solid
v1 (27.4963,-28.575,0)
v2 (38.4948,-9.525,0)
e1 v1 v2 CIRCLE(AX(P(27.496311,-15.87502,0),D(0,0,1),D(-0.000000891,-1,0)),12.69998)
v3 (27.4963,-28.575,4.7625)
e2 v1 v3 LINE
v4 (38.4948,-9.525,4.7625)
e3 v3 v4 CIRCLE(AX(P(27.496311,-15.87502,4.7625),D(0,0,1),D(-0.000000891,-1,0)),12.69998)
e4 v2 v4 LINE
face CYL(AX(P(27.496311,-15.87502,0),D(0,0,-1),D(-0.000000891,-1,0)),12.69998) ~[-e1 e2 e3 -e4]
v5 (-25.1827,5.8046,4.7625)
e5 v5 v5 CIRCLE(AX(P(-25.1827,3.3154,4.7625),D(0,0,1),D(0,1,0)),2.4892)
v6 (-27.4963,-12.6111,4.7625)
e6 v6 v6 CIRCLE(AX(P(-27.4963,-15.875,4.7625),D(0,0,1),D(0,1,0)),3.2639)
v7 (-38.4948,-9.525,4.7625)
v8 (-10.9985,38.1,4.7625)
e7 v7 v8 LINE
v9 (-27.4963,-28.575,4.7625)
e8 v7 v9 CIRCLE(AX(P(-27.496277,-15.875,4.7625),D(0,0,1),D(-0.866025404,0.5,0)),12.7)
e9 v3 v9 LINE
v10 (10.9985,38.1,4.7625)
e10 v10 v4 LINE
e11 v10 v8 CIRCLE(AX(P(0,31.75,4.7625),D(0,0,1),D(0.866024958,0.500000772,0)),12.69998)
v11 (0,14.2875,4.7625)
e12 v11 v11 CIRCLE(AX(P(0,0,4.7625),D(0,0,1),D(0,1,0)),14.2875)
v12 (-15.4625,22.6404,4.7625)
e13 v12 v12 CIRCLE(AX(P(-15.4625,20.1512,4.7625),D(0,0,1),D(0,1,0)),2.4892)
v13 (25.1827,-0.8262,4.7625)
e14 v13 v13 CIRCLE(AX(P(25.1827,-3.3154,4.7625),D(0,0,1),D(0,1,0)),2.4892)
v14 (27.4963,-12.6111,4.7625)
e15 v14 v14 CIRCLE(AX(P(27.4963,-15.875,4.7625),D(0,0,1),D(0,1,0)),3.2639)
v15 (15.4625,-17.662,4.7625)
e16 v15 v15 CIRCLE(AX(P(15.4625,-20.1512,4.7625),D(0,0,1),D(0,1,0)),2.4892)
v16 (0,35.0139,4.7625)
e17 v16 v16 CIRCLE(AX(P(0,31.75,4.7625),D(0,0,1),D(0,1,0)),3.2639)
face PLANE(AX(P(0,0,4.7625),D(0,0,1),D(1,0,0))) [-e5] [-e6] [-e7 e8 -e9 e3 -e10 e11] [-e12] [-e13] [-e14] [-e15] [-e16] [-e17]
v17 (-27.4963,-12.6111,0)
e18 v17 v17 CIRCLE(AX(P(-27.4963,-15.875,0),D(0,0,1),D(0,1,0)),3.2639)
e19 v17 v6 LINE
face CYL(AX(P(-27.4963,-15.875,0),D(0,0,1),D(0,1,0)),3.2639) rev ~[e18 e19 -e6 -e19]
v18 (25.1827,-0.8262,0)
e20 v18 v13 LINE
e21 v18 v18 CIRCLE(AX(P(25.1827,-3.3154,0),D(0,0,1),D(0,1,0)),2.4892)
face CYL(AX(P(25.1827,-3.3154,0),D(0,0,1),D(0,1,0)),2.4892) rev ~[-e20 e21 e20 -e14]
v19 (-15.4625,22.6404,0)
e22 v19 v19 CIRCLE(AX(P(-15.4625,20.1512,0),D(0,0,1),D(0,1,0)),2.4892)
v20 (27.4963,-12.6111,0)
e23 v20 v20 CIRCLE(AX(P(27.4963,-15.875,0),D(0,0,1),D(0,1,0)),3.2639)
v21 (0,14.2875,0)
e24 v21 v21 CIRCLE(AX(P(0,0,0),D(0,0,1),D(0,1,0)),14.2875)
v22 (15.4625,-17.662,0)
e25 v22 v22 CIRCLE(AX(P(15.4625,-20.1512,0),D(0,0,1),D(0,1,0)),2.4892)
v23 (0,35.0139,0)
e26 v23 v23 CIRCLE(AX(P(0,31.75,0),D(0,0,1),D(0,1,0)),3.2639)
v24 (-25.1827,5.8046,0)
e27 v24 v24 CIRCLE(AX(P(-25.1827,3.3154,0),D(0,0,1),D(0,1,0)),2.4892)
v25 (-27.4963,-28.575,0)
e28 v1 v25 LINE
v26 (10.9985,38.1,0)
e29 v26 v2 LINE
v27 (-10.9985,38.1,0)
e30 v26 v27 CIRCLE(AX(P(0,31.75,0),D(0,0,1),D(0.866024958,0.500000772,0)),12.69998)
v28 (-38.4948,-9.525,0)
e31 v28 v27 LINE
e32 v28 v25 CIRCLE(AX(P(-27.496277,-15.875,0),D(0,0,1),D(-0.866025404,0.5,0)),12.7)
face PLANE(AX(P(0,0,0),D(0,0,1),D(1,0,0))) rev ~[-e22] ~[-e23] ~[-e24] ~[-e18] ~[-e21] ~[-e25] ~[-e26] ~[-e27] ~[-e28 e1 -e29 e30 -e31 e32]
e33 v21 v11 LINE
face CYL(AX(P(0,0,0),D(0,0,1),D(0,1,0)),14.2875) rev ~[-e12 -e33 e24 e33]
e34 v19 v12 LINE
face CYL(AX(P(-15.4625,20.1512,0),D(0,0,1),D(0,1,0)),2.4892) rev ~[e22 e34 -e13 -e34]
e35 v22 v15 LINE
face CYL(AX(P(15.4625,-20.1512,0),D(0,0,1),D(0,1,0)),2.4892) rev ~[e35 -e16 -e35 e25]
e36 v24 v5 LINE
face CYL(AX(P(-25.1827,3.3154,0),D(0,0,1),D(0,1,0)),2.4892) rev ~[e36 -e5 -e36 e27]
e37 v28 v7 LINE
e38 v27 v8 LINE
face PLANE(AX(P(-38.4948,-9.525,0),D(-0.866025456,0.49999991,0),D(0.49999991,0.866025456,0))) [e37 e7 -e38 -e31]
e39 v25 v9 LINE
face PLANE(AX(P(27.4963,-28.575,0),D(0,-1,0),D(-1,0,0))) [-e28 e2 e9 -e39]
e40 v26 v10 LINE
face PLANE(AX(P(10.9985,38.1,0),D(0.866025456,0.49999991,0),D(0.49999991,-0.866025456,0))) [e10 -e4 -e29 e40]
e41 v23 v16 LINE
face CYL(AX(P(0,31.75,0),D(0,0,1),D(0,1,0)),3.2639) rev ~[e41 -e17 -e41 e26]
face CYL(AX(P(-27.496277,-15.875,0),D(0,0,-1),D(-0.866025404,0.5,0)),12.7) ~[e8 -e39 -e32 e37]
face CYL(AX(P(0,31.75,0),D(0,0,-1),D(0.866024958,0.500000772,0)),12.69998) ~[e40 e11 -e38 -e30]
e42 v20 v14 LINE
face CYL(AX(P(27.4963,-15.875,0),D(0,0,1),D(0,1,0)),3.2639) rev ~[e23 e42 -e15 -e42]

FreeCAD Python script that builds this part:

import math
import FreeCAD as App
import Part
import Sketcher
from FreeCAD import Vector
Q = App.Units.Quantity

doc = App.newDocument("Part")
body = doc.addObject("PartDesign::Body", "Body")

sketch1 = body.newObject("Sketcher::SketchObject", "Sketch")
sketch1.AttachmentSupport = (doc.getObject("XY_Plane"), [""])
sketch1.MapMode = "FlatFace"
sketch1.addGeometry([
    Part.LineSegment(Vector(-11, 38, 0), Vector(-38, -10, 0)),
    Part.ArcOfCircle(Part.Circle(Vector(-27, -16, 0), Vector(0, 0, 1), 13), math.radians(150), math.radians(270)),
    Part.LineSegment(Vector(-27, -29, 0), Vector(27, -29, 0)),
    Part.ArcOfCircle(Part.Circle(Vector(27, -16, 0), Vector(0, 0, 1), 13), math.radians(-90), math.radians(30)),
    Part.LineSegment(Vector(38, -10, 0), Vector(11, 38, 0)),
    Part.ArcOfCircle(Part.Circle(Vector(0, 32, 0), Vector(0, 0, 1), 13), math.radians(30), math.radians(150)),
], False)
sketch1.addConstraint([
    Sketcher.Constraint("Tangent", 0, 2, 1, 1),
    Sketcher.Constraint("Tangent", 1, 2, 2, 1),
    Sketcher.Constraint("Tangent", 2, 2, 3, 1),
    Sketcher.Constraint("Tangent", 3, 2, 4, 1),
    Sketcher.Constraint("Tangent", 4, 2, 5, 1),
    Sketcher.Constraint("Tangent", 5, 2, 0, 1),
    Sketcher.Constraint("Horizontal", 2),
    Sketcher.Constraint("Equal", 1, 3),
    Sketcher.Constraint("Equal", 3, 5),
    Sketcher.Constraint("Symmetric", 0, 2, 3, 2, -2),
    Sketcher.Constraint("Radius", 1, Q("0.5 in")),
    Sketcher.Constraint("DistanceY", -1, 1, 5, 3, Q("1.25 in")),
    Sketcher.Constraint("Angle", 0, Q("-120 deg")),
    Sketcher.Constraint("DistanceY", 1, 3, -1, 1, Q("0.625 in")),
])
pad1 = body.newObject("PartDesign::Pad", "Pad")
pad1.Profile = sketch1
pad1.Length = Q("0.1875 in")

sketch2 = body.newObject("Sketcher::SketchObject", "Sketch001")
sketch2.AttachmentSupport = (doc.getObject("XY_Plane"), [""])
sketch2.MapMode = "FlatFace"
sketch2.addGeometry([
    Part.Circle(Vector(-27.5, -15.9, 0), Vector(0, 0, 1), 3.3),
    Part.Circle(Vector(0, 31.8, 0), Vector(0, 0, 1), 3.3),
    Part.Circle(Vector(27.5, -15.9, 0), Vector(0, 0, 1), 3.3),
], False)
sketch2.addConstraint([
    Sketcher.Constraint("Equal", 0, 1),
    Sketcher.Constraint("Equal", 1, 2),
    Sketcher.Constraint("Symmetric", 0, 3, 2, 3, -2),
    Sketcher.Constraint("PointOnObject", 1, 3, -2),
    Sketcher.Constraint("Diameter", 0, Q("0.257 in")),
    Sketcher.Constraint("DistanceY", -1, 1, 1, 3, Q("1.25 in")),
    Sketcher.Constraint("DistanceY", 0, 3, -1, 1, Q("0.625 in")),
    Sketcher.Constraint("DistanceX", 0, 3, -1, 1, Q("27.4963 mm")),
])
doc.recompute()
hole = body.newObject("PartDesign::Hole", "Hole")
hole.Profile = sketch2
hole.ThreadType = "None"
hole.Diameter = Q("0.257 in")
hole.DepthType = "ThroughAll"
hole.Reversed = True

sketch3 = body.newObject("Sketcher::SketchObject", "Sketch002")
sketch3.AttachmentSupport = (doc.getObject("XY_Plane"), [""])
sketch3.MapMode = "FlatFace"
sketch3.addGeometry(Part.Circle(Vector(0, 0, 0), Vector(0, 0, 1), 14), False)
sketch3.addConstraint([
    Sketcher.Constraint("Coincident", 0, 3, -1, 1),
    Sketcher.Constraint("Diameter", 0, Q("1.125 in")),
])
doc.recompute()
hole2 = body.newObject("PartDesign::Hole", "Hole001")
hole2.Profile = sketch3
hole2.ThreadType = "None"
hole2.Diameter = Q("1.125 in")
hole2.DepthType = "ThroughAll"
hole2.Reversed = True

sketch4 = body.newObject("Sketcher::SketchObject", "Sketch003")
sketch4.AttachmentSupport = (doc.getObject("XY_Plane"), [""])
sketch4.MapMode = "FlatFace"
sketch4.addGeometry([
    Part.Circle(Vector(-25.2, 3.3, 0), Vector(0, 0, 1), 2.5),
    Part.Circle(Vector(15.5, -20.2, 0), Vector(0, 0, 1), 2.5),
    Part.Circle(Vector(25.2, -3.3, 0), Vector(0, 0, 1), 2.5),
    Part.Circle(Vector(-15.5, 20.2, 0), Vector(0, 0, 1), 2.5),
], False)
sketch4.addConstraint([
    Sketcher.Constraint("Equal", 0, 1),
    Sketcher.Constraint("Equal", 1, 2),
    Sketcher.Constraint("Equal", 2, 3),
    Sketcher.Constraint("Symmetric", 0, 3, 2, 3, -1, 1),
    Sketcher.Constraint("Symmetric", 1, 3, 3, 3, -1, 1),
    Sketcher.Constraint("Diameter", 0, Q("0.196 in")),
    Sketcher.Constraint("DistanceX", 0, 3, 1, 3, Q("1.6002 in")),
    Sketcher.Constraint("DistanceX", 0, 3, 2, 3, Q("1.9829 in")),
    Sketcher.Constraint("DistanceY", 1, 3, 3, 3, Q("1.5867 in")),
    Sketcher.Constraint("DistanceY", -1, 1, 0, 3, Q("3.3154 mm")),
])
doc.recompute()
hole3 = body.newObject("PartDesign::Hole", "Hole002")
hole3.Profile = sketch4
hole3.ThreadType = "None"
hole3.Diameter = Q("0.196 in")
hole3.DepthType = "ThroughAll"
hole3.Reversed = True

doc.recompute()
